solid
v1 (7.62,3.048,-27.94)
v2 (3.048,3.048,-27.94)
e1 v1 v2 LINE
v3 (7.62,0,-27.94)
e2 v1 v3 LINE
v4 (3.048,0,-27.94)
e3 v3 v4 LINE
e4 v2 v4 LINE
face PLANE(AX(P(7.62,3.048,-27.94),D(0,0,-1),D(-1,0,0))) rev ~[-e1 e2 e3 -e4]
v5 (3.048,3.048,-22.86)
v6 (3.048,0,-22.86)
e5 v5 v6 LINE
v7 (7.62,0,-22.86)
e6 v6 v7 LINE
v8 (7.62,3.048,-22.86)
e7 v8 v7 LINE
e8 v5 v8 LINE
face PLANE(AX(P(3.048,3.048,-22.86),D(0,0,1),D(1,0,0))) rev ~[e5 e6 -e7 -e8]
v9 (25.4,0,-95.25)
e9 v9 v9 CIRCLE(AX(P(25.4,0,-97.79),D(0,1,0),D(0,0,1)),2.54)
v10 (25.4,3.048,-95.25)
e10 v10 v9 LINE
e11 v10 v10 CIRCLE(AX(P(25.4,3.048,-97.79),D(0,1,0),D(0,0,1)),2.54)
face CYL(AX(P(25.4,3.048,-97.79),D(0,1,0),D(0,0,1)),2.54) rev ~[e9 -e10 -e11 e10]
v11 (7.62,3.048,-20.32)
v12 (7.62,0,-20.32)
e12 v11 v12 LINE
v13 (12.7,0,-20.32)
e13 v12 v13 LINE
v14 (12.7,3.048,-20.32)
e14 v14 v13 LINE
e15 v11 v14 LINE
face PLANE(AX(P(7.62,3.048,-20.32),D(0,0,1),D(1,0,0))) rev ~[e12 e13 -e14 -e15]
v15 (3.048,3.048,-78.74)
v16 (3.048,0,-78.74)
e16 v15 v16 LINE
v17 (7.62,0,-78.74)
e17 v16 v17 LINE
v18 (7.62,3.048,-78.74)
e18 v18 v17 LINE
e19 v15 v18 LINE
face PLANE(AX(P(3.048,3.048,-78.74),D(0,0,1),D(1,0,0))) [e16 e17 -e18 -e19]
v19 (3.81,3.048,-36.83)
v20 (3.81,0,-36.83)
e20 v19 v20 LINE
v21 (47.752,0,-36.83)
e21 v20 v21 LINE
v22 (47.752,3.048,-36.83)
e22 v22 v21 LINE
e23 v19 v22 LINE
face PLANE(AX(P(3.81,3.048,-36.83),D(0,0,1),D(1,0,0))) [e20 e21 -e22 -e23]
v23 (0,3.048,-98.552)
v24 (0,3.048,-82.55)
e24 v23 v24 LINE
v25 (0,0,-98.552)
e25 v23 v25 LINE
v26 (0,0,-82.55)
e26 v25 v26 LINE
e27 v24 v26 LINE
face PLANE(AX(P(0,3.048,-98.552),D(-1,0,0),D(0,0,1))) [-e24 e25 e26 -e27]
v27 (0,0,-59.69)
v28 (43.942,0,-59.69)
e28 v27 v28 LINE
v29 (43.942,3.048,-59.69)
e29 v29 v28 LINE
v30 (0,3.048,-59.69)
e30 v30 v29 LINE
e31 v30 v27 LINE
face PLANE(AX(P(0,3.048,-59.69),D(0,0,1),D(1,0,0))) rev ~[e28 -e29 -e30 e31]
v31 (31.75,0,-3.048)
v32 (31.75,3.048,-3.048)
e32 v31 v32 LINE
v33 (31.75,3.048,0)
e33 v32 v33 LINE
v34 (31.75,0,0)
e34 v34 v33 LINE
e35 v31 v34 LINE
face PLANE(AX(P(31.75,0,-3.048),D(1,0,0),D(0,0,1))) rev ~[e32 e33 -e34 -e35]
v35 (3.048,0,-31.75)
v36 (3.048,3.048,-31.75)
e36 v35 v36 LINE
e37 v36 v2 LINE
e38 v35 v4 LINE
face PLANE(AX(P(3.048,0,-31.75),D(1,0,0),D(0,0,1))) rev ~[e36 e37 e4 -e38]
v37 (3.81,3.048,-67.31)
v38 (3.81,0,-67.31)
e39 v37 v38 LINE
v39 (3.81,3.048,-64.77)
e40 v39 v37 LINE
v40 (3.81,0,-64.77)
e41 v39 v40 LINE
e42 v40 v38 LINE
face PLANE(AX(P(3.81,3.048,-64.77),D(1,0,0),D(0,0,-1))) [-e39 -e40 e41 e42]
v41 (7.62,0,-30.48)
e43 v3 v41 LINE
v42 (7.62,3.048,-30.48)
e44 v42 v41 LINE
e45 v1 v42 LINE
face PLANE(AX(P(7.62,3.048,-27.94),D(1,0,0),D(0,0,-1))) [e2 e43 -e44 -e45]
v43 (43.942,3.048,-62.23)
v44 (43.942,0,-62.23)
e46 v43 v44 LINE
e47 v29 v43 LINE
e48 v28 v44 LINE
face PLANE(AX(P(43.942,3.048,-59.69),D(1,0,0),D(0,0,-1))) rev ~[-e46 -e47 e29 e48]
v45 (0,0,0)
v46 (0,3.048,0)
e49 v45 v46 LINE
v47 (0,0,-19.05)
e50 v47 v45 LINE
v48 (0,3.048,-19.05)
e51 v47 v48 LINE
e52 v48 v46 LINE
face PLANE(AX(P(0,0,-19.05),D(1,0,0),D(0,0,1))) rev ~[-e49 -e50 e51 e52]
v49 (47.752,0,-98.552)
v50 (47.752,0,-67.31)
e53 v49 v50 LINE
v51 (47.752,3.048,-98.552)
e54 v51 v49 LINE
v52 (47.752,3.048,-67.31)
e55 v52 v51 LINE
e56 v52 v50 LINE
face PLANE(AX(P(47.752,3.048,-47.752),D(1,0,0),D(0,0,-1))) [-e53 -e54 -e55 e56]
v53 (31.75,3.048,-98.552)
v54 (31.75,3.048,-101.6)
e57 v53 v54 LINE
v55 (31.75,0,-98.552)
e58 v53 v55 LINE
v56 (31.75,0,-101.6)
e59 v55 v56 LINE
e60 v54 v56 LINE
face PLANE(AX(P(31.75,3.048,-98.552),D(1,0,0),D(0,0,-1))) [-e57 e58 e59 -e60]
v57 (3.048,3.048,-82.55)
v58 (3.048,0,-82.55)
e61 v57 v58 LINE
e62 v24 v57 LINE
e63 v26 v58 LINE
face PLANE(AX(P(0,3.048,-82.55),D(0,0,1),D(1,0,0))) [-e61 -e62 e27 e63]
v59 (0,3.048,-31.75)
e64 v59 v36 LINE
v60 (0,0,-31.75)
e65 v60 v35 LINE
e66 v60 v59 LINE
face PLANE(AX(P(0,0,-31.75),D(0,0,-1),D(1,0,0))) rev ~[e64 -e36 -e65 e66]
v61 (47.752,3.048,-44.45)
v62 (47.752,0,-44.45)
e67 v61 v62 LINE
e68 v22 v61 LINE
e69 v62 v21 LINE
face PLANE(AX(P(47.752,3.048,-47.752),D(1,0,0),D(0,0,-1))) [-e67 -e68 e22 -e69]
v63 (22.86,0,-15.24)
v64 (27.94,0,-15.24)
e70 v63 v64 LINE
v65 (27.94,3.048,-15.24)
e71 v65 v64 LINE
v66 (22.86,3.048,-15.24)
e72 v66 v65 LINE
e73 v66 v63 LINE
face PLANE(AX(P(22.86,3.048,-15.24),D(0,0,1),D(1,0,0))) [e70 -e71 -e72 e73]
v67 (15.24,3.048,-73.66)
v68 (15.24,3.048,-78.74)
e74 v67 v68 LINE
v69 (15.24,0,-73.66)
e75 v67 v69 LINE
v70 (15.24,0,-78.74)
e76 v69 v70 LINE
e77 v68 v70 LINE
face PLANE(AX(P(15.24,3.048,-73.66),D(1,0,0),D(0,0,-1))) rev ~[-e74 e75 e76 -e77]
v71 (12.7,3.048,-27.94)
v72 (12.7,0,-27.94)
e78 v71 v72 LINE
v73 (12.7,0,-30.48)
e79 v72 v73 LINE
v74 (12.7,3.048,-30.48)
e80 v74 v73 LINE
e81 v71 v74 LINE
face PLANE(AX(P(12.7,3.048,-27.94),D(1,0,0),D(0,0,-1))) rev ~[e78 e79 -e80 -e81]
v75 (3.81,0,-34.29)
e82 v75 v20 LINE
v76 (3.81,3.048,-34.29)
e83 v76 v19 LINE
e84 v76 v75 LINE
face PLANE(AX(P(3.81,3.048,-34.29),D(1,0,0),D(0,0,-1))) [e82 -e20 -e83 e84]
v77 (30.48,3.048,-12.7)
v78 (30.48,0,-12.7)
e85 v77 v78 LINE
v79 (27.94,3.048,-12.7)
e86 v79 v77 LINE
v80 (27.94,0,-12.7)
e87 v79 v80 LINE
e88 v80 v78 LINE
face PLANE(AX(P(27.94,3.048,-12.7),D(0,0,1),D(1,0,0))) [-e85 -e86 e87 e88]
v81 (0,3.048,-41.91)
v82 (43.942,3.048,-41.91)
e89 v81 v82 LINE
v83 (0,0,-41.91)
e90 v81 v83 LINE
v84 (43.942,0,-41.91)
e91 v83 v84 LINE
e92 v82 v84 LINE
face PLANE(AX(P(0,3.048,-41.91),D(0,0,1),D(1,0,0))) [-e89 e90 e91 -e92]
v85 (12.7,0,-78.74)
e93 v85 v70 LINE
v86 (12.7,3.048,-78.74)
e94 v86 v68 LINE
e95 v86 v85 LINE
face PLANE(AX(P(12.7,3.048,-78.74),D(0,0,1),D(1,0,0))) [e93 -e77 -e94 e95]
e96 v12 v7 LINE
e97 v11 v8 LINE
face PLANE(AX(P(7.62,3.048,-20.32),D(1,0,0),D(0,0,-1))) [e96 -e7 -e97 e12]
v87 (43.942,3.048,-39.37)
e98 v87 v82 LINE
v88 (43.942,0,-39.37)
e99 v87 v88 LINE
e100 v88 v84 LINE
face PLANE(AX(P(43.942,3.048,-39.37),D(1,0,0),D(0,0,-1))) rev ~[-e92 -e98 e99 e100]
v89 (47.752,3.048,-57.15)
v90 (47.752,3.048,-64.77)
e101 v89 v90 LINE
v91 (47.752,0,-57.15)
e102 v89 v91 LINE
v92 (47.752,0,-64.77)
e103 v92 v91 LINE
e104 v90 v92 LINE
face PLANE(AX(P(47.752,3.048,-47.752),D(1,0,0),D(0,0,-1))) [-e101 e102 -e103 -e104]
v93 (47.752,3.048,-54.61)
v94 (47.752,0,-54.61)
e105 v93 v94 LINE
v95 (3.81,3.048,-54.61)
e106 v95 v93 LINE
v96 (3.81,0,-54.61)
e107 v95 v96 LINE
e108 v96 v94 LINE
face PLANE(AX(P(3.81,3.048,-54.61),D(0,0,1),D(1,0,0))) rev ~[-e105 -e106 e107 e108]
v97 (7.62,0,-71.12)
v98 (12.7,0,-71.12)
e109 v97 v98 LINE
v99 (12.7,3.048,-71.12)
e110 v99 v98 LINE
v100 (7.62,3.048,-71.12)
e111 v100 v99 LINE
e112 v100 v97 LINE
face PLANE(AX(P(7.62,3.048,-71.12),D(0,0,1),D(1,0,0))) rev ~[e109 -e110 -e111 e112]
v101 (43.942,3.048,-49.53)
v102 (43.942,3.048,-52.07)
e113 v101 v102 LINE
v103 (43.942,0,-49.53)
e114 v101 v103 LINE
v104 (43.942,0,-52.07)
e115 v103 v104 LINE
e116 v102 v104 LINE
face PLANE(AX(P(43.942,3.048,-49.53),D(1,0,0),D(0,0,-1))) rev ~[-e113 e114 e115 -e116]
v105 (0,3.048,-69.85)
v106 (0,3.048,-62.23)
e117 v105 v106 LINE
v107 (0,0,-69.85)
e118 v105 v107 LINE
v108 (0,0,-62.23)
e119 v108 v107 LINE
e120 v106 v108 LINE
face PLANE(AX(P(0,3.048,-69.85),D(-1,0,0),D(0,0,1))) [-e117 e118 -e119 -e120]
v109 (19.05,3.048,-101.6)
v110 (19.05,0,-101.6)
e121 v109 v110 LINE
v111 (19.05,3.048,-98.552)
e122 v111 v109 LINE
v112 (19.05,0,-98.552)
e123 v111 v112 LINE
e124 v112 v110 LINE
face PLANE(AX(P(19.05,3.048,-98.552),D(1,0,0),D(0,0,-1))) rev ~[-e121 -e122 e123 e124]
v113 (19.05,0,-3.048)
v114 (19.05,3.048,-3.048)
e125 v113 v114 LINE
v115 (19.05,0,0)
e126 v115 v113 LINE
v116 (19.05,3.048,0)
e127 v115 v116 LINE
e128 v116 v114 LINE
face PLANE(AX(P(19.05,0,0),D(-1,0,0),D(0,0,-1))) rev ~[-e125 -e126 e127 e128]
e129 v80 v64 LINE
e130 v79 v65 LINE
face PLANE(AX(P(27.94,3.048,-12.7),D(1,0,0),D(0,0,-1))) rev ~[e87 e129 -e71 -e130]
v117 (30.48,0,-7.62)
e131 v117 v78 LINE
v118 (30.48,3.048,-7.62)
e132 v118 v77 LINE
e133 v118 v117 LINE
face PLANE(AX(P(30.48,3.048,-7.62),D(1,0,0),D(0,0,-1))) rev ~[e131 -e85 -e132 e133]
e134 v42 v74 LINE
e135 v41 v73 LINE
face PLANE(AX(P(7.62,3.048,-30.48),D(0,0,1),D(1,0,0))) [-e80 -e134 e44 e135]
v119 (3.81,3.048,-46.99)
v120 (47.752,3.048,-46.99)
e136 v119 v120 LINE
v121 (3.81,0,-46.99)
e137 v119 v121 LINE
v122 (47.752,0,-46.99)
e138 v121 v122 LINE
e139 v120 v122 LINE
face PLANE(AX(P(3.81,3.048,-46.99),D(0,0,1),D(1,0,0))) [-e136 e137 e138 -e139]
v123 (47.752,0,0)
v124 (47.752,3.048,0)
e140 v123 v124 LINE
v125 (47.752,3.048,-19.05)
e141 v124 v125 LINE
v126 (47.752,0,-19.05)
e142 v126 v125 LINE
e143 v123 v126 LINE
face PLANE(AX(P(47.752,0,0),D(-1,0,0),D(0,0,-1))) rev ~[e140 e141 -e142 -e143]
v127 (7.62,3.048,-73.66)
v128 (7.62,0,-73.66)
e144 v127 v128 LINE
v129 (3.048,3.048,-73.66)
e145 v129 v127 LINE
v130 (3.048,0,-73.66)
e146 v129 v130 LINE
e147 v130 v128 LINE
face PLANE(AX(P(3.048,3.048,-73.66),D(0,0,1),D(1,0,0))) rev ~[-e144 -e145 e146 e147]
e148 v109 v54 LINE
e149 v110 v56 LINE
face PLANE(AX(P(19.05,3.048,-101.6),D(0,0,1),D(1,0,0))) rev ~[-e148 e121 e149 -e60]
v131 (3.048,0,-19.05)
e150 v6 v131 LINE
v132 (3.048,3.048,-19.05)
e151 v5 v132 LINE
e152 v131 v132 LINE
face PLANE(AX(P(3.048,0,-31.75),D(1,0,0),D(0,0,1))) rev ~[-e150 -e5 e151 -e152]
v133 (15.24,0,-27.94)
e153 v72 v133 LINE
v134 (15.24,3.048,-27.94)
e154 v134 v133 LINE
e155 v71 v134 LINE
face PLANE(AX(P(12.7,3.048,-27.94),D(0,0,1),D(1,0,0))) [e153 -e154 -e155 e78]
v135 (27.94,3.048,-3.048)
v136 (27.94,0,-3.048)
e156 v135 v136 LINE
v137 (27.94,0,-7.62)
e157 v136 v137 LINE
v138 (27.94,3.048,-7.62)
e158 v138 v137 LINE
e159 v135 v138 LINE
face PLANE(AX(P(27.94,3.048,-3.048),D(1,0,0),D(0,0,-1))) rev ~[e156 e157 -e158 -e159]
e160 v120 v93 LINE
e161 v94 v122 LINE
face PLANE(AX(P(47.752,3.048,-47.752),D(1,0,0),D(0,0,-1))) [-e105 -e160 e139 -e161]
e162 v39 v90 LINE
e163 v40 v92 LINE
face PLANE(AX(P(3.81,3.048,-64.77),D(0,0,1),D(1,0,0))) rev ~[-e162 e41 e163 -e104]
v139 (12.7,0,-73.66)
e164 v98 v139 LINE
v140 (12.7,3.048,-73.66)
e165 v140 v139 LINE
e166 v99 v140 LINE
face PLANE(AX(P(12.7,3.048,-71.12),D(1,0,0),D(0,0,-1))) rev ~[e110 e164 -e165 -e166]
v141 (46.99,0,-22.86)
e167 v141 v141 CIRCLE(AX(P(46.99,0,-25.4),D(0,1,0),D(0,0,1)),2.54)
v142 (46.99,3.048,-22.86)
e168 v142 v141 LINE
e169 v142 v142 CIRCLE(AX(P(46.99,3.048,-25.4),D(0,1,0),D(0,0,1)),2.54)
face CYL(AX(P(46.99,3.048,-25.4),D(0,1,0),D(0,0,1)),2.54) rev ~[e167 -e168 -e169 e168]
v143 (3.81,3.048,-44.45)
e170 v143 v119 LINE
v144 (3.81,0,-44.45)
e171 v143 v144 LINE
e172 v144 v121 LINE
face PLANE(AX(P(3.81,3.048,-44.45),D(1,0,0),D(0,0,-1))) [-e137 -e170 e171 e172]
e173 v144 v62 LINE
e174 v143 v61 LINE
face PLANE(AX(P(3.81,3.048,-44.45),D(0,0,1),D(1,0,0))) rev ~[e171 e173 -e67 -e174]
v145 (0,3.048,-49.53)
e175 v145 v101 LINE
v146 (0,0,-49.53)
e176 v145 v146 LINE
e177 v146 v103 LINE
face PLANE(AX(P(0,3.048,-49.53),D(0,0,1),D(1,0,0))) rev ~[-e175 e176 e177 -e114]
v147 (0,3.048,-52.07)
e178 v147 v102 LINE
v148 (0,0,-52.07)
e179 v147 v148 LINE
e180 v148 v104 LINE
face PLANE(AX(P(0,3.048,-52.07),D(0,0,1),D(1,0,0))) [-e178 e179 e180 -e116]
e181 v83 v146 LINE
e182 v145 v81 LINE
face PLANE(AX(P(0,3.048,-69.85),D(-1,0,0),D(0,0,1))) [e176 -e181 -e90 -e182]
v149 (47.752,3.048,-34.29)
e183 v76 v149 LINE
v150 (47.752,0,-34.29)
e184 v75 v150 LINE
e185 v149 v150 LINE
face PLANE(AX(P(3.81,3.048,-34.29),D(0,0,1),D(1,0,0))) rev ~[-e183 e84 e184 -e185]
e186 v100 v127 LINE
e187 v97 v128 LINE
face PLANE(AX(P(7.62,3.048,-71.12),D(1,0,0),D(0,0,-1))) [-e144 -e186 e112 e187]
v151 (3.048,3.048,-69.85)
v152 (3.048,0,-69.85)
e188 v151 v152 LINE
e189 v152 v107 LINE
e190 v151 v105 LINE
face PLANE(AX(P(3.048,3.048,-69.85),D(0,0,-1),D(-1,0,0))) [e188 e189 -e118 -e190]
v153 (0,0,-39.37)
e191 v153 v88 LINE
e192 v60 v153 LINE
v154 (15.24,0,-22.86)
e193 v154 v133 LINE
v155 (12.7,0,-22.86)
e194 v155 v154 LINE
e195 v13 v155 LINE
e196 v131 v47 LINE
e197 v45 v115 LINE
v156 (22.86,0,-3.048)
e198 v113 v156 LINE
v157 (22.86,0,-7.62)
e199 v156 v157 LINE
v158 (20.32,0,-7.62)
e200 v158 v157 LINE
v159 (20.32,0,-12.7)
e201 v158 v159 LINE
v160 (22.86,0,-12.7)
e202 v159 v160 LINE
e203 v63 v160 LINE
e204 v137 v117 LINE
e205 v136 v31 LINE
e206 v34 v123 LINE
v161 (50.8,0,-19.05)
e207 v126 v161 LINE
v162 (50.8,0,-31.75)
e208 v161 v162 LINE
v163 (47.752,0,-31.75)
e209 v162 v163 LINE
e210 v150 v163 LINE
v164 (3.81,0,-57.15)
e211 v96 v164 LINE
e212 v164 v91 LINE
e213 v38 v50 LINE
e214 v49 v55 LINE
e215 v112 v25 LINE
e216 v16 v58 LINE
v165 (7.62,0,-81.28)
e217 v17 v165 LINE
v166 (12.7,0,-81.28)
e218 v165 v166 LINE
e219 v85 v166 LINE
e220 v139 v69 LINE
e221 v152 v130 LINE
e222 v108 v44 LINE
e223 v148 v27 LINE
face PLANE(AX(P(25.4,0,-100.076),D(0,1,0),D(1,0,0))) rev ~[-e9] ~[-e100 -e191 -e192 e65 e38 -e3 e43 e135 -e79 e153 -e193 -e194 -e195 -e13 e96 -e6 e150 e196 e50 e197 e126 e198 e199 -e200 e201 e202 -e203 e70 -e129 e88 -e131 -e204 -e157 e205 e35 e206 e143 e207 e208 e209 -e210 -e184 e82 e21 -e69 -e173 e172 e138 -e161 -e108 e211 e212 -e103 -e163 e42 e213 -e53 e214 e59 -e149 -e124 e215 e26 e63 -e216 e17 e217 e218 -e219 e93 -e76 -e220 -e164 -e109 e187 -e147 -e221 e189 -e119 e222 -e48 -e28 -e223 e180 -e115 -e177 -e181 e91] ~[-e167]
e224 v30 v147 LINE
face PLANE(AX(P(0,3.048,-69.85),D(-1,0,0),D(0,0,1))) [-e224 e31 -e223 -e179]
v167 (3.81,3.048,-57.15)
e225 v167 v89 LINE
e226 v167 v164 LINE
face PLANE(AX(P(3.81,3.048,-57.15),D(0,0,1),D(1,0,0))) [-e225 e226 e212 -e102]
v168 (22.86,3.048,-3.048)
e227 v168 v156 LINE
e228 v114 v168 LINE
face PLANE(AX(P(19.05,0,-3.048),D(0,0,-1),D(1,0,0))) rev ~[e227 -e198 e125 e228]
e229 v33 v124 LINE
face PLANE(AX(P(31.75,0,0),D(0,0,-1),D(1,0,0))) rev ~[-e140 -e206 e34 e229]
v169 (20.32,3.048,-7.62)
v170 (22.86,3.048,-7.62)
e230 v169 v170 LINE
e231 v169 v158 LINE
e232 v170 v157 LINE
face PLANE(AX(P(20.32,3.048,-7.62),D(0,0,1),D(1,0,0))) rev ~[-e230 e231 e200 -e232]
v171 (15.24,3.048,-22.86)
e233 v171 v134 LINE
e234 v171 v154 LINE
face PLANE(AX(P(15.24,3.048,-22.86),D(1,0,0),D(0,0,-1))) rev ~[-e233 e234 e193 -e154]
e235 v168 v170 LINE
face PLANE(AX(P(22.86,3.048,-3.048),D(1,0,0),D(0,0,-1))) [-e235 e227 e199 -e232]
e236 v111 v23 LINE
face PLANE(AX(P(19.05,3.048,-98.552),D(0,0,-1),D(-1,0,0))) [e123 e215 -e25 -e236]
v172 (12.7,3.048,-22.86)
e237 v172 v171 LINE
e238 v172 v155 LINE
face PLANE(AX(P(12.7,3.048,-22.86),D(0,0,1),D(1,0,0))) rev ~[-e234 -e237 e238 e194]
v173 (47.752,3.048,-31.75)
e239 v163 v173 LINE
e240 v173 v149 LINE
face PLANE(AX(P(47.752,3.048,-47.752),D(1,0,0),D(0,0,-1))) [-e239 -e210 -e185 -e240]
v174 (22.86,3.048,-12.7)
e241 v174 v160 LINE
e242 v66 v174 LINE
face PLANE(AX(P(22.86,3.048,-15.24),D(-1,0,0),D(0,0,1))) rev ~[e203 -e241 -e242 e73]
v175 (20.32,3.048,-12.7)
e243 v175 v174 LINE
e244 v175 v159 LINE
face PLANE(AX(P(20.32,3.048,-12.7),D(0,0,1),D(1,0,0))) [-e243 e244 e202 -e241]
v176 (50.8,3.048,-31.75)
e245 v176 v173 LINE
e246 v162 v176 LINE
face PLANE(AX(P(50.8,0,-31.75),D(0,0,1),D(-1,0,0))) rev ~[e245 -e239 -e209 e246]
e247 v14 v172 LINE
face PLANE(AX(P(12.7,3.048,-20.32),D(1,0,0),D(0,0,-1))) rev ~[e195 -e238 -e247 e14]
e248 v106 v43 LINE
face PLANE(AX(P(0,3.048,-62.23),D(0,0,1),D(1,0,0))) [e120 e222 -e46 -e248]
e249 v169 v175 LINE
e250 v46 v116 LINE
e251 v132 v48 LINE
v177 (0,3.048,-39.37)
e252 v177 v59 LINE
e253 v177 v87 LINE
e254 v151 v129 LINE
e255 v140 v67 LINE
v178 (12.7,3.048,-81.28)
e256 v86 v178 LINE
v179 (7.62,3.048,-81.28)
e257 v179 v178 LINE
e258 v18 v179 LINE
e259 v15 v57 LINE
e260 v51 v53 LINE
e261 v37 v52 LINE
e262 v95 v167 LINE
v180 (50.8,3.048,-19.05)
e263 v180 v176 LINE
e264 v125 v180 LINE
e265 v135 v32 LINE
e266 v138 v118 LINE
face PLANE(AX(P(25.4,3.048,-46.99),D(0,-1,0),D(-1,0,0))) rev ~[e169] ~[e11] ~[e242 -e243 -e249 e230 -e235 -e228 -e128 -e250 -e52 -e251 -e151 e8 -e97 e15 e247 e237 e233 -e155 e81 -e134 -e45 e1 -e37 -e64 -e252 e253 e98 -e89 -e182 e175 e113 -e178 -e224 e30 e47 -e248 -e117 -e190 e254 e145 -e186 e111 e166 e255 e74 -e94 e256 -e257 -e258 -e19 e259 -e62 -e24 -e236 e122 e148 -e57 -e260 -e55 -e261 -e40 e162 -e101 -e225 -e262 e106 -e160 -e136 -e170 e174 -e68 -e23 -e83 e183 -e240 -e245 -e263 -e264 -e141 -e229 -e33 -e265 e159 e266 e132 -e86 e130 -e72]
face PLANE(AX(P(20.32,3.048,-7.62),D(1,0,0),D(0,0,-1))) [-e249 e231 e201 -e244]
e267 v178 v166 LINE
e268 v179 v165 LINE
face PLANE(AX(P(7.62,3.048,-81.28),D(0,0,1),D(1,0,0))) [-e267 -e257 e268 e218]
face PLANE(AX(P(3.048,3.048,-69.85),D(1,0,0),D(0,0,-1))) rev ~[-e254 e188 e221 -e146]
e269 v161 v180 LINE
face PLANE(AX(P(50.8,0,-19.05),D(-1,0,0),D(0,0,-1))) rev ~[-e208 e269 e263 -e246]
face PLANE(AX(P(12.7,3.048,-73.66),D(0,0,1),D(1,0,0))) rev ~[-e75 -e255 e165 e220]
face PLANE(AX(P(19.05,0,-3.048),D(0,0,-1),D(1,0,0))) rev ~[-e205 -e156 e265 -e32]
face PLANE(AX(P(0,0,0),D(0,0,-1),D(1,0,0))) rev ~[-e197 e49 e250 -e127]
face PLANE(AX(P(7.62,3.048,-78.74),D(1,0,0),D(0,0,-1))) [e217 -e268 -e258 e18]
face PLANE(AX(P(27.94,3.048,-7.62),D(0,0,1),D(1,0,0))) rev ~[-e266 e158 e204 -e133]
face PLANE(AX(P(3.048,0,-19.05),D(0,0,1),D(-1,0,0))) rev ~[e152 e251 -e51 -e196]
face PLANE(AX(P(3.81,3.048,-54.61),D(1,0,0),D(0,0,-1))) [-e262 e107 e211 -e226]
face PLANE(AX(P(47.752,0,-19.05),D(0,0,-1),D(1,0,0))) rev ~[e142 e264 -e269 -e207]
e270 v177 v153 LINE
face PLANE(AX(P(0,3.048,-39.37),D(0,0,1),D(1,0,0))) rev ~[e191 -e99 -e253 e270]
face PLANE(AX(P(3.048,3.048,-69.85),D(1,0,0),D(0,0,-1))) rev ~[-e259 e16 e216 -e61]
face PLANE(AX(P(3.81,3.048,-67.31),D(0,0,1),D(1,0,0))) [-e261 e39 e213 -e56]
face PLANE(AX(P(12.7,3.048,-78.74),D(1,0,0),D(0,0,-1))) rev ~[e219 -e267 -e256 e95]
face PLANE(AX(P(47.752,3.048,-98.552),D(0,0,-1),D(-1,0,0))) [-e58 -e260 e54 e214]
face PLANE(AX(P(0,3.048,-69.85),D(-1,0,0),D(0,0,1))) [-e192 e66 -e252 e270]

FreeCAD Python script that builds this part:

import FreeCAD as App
import Part
import Sketcher
from FreeCAD import Vector
Q = App.Units.Quantity

doc = App.newDocument("Part")
body = doc.addObject("PartDesign::Body", "Body")

# Sketch on XZ plane
sketch1 = body.newObject("Sketcher::SketchObject", "Sketch")
sketch1.AttachmentSupport = (doc.getObject("XZ_Plane"), [""])
sketch1.MapMode = "FlatFace"
sketch1.addGeometry([
    Part.LineSegment(Vector(0, -19.1, 0), Vector(0, 0, 0)),  # 0
    Part.LineSegment(Vector(0, 0, 0), Vector(19.1, 0, 0)),  # 1
    Part.LineSegment(Vector(19.1, 0, 0), Vector(19.1, -3, 0)),  # 2
    Part.LineSegment(Vector(19.1, -3, 0), Vector(31.8, -3, 0)),  # 3
    Part.LineSegment(Vector(31.8, -3, 0), Vector(31.8, 0, 0)),  # 4
    Part.LineSegment(Vector(31.8, 0, 0), Vector(47.8, 0, 0)),  # 5
    Part.LineSegment(Vector(47.8, 0, 0), Vector(47.8, -19.1, 0)),  # 6
    Part.LineSegment(Vector(47.8, -19.1, 0), Vector(50.8, -19.1, 0)),  # 7
    Part.LineSegment(Vector(50.8, -19.1, 0), Vector(50.8, -31.8, 0)),  # 8
    Part.LineSegment(Vector(50.8, -31.8, 0), Vector(47.8, -31.8, 0)),  # 9
    Part.LineSegment(Vector(47.8, -31.8, 0), Vector(47.8, -47.8, 0)),  # 10
    Part.LineSegment(Vector(47.8, -47.8, 0), Vector(31.8, -47.8, 0)),  # 11
    Part.LineSegment(Vector(31.8, -47.8, 0), Vector(31.8, -50.8, 0)),  # 12
    Part.LineSegment(Vector(31.8, -50.8, 0), Vector(19.1, -50.8, 0)),  # 13
    Part.LineSegment(Vector(19.1, -50.8, 0), Vector(19.1, -47.8, 0)),  # 14
    Part.LineSegment(Vector(19.1, -47.8, 0), Vector(0, -47.8, 0)),  # 15
    Part.LineSegment(Vector(0, -47.8, 0), Vector(0, -31.8, 0)),  # 16
    Part.LineSegment(Vector(0, -31.8, 0), Vector(3, -31.8, 0)),  # 17
    Part.LineSegment(Vector(3, -31.8, 0), Vector(3, -19.1, 0)),  # 18
    Part.LineSegment(Vector(3, -19.1, 0), Vector(0, -19.1, 0)),  # 19
], False)
sketch1.addConstraint([
    Sketcher.Constraint("Coincident", 0, 2, 1, 1),
    Sketcher.Constraint("Coincident", 1, 2, 2, 1),
    Sketcher.Constraint("Coincident", 2, 2, 3, 1),
    Sketcher.Constraint("Coincident", 3, 2, 4, 1),
    Sketcher.Constraint("Coincident", 4, 2, 5, 1),
    Sketcher.Constraint("Coincident", 5, 2, 6, 1),
    Sketcher.Constraint("Coincident", 6, 2, 7, 1),
    Sketcher.Constraint("Coincident", 7, 2, 8, 1),
    Sketcher.Constraint("Coincident", 8, 2, 9, 1),
    Sketcher.Constraint("Coincident", 9, 2, 10, 1),
    Sketcher.Constraint("Coincident", 10, 2, 11, 1),
    Sketcher.Constraint("Coincident", 11, 2, 12, 1),
    Sketcher.Constraint("Coincident", 12, 2, 13, 1),
    Sketcher.Constraint("Coincident", 13, 2, 14, 1),
    Sketcher.Constraint("Coincident", 14, 2, 15, 1),
    Sketcher.Constraint("Coincident", 15, 2, 16, 1),
    Sketcher.Constraint("Coincident", 16, 2, 17, 1),
    Sketcher.Constraint("Coincident", 17, 2, 18, 1),
    Sketcher.Constraint("Coincident", 18, 2, 19, 1),
    Sketcher.Constraint("Coincident", 19, 2, 0, 1),
    Sketcher.Constraint("Vertical", 0),
    Sketcher.Constraint("Horizontal", 1),
    Sketcher.Constraint("Vertical", 2),
    Sketcher.Constraint("Horizontal", 3),
    Sketcher.Constraint("Vertical", 4),
    Sketcher.Constraint("Horizontal", 5),
    Sketcher.Constraint("Vertical", 6),
    Sketcher.Constraint("Horizontal", 7),
    Sketcher.Constraint("Vertical", 8),
    Sketcher.Constraint("Horizontal", 9),
    Sketcher.Constraint("Vertical", 10),
    Sketcher.Constraint("Horizontal", 11),
    Sketcher.Constraint("Vertical", 12),
    Sketcher.Constraint("Horizontal", 13),
    Sketcher.Constraint("Vertical", 14),
    Sketcher.Constraint("Horizontal", 15),
    Sketcher.Constraint("Vertical", 16),
    Sketcher.Constraint("Horizontal", 17),
    Sketcher.Constraint("Vertical", 18),
    Sketcher.Constraint("Horizontal", 19),
    Sketcher.Constraint("Coincident", 0, 2, -1, 1),
    Sketcher.Constraint("PointOnObject", 4, 2, -1),
    Sketcher.Constraint("PointOnObject", 15, 2, -2),
    Sketcher.Constraint("Horizontal", 11, 2, 14, 2),
    Sketcher.Constraint("Horizontal", 9, 2, 16, 2),
    Sketcher.Constraint("Horizontal", 7, 2, 18, 2),
    Sketcher.Constraint("Vertical", 6, 2, 9, 2),
    Sketcher.Constraint("Vertical", 4, 2, 11, 2),
    Sketcher.Constraint("Vertical", 2, 2, 13, 2),
    Sketcher.Constraint("Equal", 9, 17),
    Sketcher.Constraint("Equal", 15, 0),
    Sketcher.Constraint("Equal", 19, 2),
    Sketcher.Constraint("Equal", 13, 8),
    Sketcher.Constraint("Equal", 11, 10),
    Sketcher.Constraint("Equal", 4, 12),
    Sketcher.Constraint("DistanceX", 3, 1, 3, 2, Q("0.5 in")),
    Sketcher.Constraint("DistanceX", -1, 1, 7, 2, Q("2 in")),
    Sketcher.Constraint("DistanceX", 1, 1, 1, 2, Q("0.75 in")),
    Sketcher.Constraint("DistanceX", 5, 1, 5, 2, Q("0.63 in")),
])
pad1 = body.newObject("PartDesign::Pad", "Pad")
pad1.Profile = sketch1
pad1.Length = Q("0.12 in")
pad1.Reversed = True

# Sketch on XZ plane
sketch2 = body.newObject("Sketcher::SketchObject", "Sketch001")
sketch2.AttachmentSupport = (doc.getObject("XZ_Plane"), [""])
sketch2.MapMode = "FlatFace"
sketch2.AttachmentOffset = App.Placement(Vector(0, 0, -0.12 * 25.4), App.Rotation())
sketch2.addGeometry([
    Part.LineSegment(Vector(3, -27.9, 0), Vector(3, -22.9, 0)),  # 0
    Part.LineSegment(Vector(3, -22.9, 0), Vector(7.6, -22.9, 0)),  # 1
    Part.LineSegment(Vector(7.6, -22.9, 0), Vector(7.6, -20.3, 0)),  # 2
    Part.LineSegment(Vector(7.6, -20.3, 0), Vector(12.7, -20.3, 0)),  # 3
    Part.LineSegment(Vector(12.7, -20.3, 0), Vector(12.7, -22.9, 0)),  # 4
    Part.LineSegment(Vector(12.7, -22.9, 0), Vector(15.2, -22.9, 0)),  # 5
    Part.LineSegment(Vector(15.2, -22.9, 0), Vector(15.2, -27.9, 0)),  # 6
    Part.LineSegment(Vector(15.2, -27.9, 0), Vector(12.7, -27.9, 0)),  # 7
    Part.LineSegment(Vector(12.7, -27.9, 0), Vector(12.7, -30.5, 0)),  # 8
    Part.LineSegment(Vector(12.7, -30.5, 0), Vector(7.6, -30.5, 0)),  # 9
    Part.LineSegment(Vector(7.6, -30.5, 0), Vector(7.6, -27.9, 0)),  # 10
    Part.LineSegment(Vector(7.6, -27.9, 0), Vector(3, -27.9, 0)),  # 11
    Part.LineSegment(Vector(22.9, -15.2, 0), Vector(22.9, -12.7, 0)),  # 12
    Part.LineSegment(Vector(22.9, -12.7, 0), Vector(20.3, -12.7, 0)),  # 13
    Part.LineSegment(Vector(20.3, -12.7, 0), Vector(20.3, -7.6, 0)),  # 14
    Part.LineSegment(Vector(20.3, -7.6, 0), Vector(22.9, -7.6, 0)),  # 15
    Part.LineSegment(Vector(22.9, -7.6, 0), Vector(22.9, -3, 0)),  # 16
    Part.LineSegment(Vector(22.9, -3, 0), Vector(27.9, -3, 0)),  # 17
    Part.LineSegment(Vector(27.9, -3, 0), Vector(27.9, -7.6, 0)),  # 18
    Part.LineSegment(Vector(27.9, -7.6, 0), Vector(30.5, -7.6, 0)),  # 19
    Part.LineSegment(Vector(30.5, -7.6, 0), Vector(30.5, -12.7, 0)),  # 20
    Part.LineSegment(Vector(30.5, -12.7, 0), Vector(27.9, -12.7, 0)),  # 21
    Part.LineSegment(Vector(27.9, -12.7, 0), Vector(27.9, -15.2, 0)),  # 22
    Part.LineSegment(Vector(27.9, -15.2, 0), Vector(22.9, -15.2, 0)),  # 23
    Part.Circle(Vector(47, -25.4, 0), Vector(0, 0, 1), 2.5),  # 24
    Part.Circle(Vector(25.4, -47, 0), Vector(0, 0, 1), 2.5),  # 25
], False)
sketch2.addConstraint([
    Sketcher.Constraint("Coincident", 0, 2, 1, 1),
    Sketcher.Constraint("Coincident", 1, 2, 2, 1),
    Sketcher.Constraint("Coincident", 2, 2, 3, 1),
    Sketcher.Constraint("Coincident", 3, 2, 4, 1),
    Sketcher.Constraint("Coincident", 4, 2, 5, 1),
    Sketcher.Constraint("Coincident", 5, 2, 6, 1),
    Sketcher.Constraint("Coincident", 6, 2, 7, 1),
    Sketcher.Constraint("Coincident", 7, 2, 8, 1),
    Sketcher.Constraint("Coincident", 8, 2, 9, 1),
    Sketcher.Constraint("Coincident", 9, 2, 10, 1),
    Sketcher.Constraint("Coincident", 10, 2, 11, 1),
    Sketcher.Constraint("Coincident", 11, 2, 0, 1),
    Sketcher.Constraint("Coincident", 12, 2, 13, 1),
    Sketcher.Constraint("Coincident", 13, 2, 14, 1),
    Sketcher.Constraint("Coincident", 14, 2, 15, 1),
    Sketcher.Constraint("Coincident", 15, 2, 16, 1),
    Sketcher.Constraint("Coincident", 16, 2, 17, 1),
    Sketcher.Constraint("Coincident", 17, 2, 18, 1),
    Sketcher.Constraint("Coincident", 18, 2, 19, 1),
    Sketcher.Constraint("Coincident", 19, 2, 20, 1),
    Sketcher.Constraint("Coincident", 20, 2, 21, 1),
    Sketcher.Constraint("Coincident", 21, 2, 22, 1),
    Sketcher.Constraint("Coincident", 22, 2, 23, 1),
    Sketcher.Constraint("Coincident", 23, 2, 12, 1),
    Sketcher.Constraint("Vertical", 0),
    Sketcher.Constraint("Horizontal", 1),
    Sketcher.Constraint("Vertical", 2),
    Sketcher.Constraint("Horizontal", 3),
    Sketcher.Constraint("Vertical", 4),
    Sketcher.Constraint("Horizontal", 5),
    Sketcher.Constraint("Vertical", 6),
    Sketcher.Constraint("Horizontal", 7),
    Sketcher.Constraint("Vertical", 8),
    Sketcher.Constraint("Horizontal", 9),
    Sketcher.Constraint("Vertical", 10),
    Sketcher.Constraint("Horizontal", 11),
    Sketcher.Constraint("Vertical", 12),
    Sketcher.Constraint("Horizontal", 13),
    Sketcher.Constraint("Vertical", 14),
    Sketcher.Constraint("Horizontal", 15),
    Sketcher.Constraint("Vertical", 16),
    Sketcher.Constraint("Horizontal", 17),
    Sketcher.Constraint("Vertical", 18),
    Sketcher.Constraint("Horizontal", 19),
    Sketcher.Constraint("Vertical", 20),
    Sketcher.Constraint("Horizontal", 21),
    Sketcher.Constraint("Vertical", 22),
    Sketcher.Constraint("Horizontal", 23),
    Sketcher.Constraint("Equal", 24, 25),
    Sketcher.Constraint("Horizontal", 1, 2, 4, 2),
    Sketcher.Constraint("Horizontal", 7, 2, 10, 2),
    Sketcher.Constraint("Horizontal", 15, 2, 18, 2),
    Sketcher.Constraint("Horizontal", 13, 2, 20, 2),
    Sketcher.Constraint("Vertical", 4, 2, 7, 2),
    Sketcher.Constraint("Vertical", 2, 2, 9, 2),
    Sketcher.Constraint("Vertical", 12, 2, 15, 2),
    Sketcher.Constraint("Vertical", 18, 2, 21, 2),
    Sketcher.Constraint("Equal", 7, 13),
    Sketcher.Constraint("Equal", 9, 17),
    Sketcher.Constraint("Equal", 15, 19),
    Sketcher.Constraint("Equal", 23, 0),
    Sketcher.Constraint("Equal", 21, 2),
    Sketcher.Constraint("Equal", 4, 8),
    Sketcher.Constraint("Equal", 10, 12),
    Sketcher.Constraint("Equal", 6, 14),
    Sketcher.Constraint("Equal", 11, 16),
    Sketcher.Constraint("Diameter", 24, Q("0.2 in")),
    Sketcher.Constraint("DistanceX", 3, 1, 3, 2, Q("0.2 in")),
    Sketcher.Constraint("DistanceX", 5, 1, 5, 2, Q("0.1 in")),
    Sketcher.Constraint("DistanceY", 24, 3, -1, 1, Q("1 in")),
    Sketcher.Constraint("DistanceX", -1, 1, 25, 3, Q("1 in")),
    Sketcher.Constraint("DistanceX", 1, 1, 1, 2, Q("0.18 in")),
    Sketcher.Constraint("DistanceY", 0, 2, -1, 1, Q("0.9 in")),
    Sketcher.Constraint("DistanceX", -1, 1, 1, 2, Q("0.3 in")),
    Sketcher.Constraint("DistanceX", -1, 1, 12, 2, Q("0.9 in")),
    Sketcher.Constraint("DistanceY", 12, 2, -1, 1, Q("0.5 in")),
    Sketcher.Constraint("DistanceX", -1, 1, 24, 3, Q("1.85 in")),
    Sketcher.Constraint("DistanceY", 25, 3, -1, 1, Q("1.85 in")),
])
pocket1 = body.newObject("PartDesign::Pocket", "Pocket")
pocket1.Profile = sketch2
pocket1.Length = Q("0.12 in")
pocket1.Reversed = True

# Sketch on XZ plane
sketch3 = body.newObject("Sketcher::SketchObject", "Sketch002")
sketch3.AttachmentSupport = (doc.getObject("XZ_Plane"), [""])
sketch3.MapMode = "FlatFace"
sketch3.AttachmentOffset = App.Placement(Vector(0, 0, -0.12 * 25.4), App.Rotation())
sketch3.addGeometry([
    Part.LineSegment(Vector(19.1, -101.6, 0), Vector(19.1, -98.6, 0)),  # 0
    Part.LineSegment(Vector(19.1, -98.6, 0), Vector(0, -98.6, 0)),  # 1
    Part.LineSegment(Vector(0, -98.6, 0), Vector(0, -82.5, 0)),  # 2
    Part.LineSegment(Vector(0, -82.5, 0), Vector(3, -82.5, 0)),  # 3
    Part.LineSegment(Vector(3, -82.5, 0), Vector(3, -69.8, 0)),  # 4
    Part.LineSegment(Vector(3, -69.8, 0), Vector(0, -69.8, 0)),  # 5
    Part.LineSegment(Vector(0, -69.8, 0), Vector(0, -47.8, 0)),  # 6
    Part.LineSegment(Vector(0, -47.8, 0), Vector(19.1, -47.8, 0)),  # 7
    Part.LineSegment(Vector(19.1, -47.8, 0), Vector(19.1, -50.8, 0)),  # 8
    Part.LineSegment(Vector(19.1, -50.8, 0), Vector(31.8, -50.8, 0)),  # 9
    Part.LineSegment(Vector(31.8, -50.8, 0), Vector(31.8, -47.8, 0)),  # 10
    Part.LineSegment(Vector(31.8, -47.8, 0), Vector(47.8, -47.8, 0)),  # 11
    Part.LineSegment(Vector(47.8, -47.8, 0), Vector(47.8, -98.6, 0)),  # 12
    Part.LineSegment(Vector(47.8, -98.6, 0), Vector(31.8, -98.6, 0)),  # 13
    Part.LineSegment(Vector(31.8, -98.6, 0), Vector(31.8, -101.6, 0)),  # 14
    Part.LineSegment(Vector(31.8, -101.6, 0), Vector(19.1, -101.6, 0)),  # 15
], False)
sketch3.addConstraint([
    Sketcher.Constraint("Coincident", 0, 2, 1, 1),
    Sketcher.Constraint("Coincident", 1, 2, 2, 1),
    Sketcher.Constraint("Coincident", 2, 2, 3, 1),
    Sketcher.Constraint("Coincident", 3, 2, 4, 1),
    Sketcher.Constraint("Coincident", 4, 2, 5, 1),
    Sketcher.Constraint("Coincident", 5, 2, 6, 1),
    Sketcher.Constraint("Coincident", 6, 2, 7, 1),
    Sketcher.Constraint("Coincident", 7, 2, 8, 1),
    Sketcher.Constraint("Coincident", 8, 2, 9, 1),
    Sketcher.Constraint("Coincident", 9, 2, 10, 1),
    Sketcher.Constraint("Coincident", 10, 2, 11, 1),
    Sketcher.Constraint("Coincident", 11, 2, 12, 1),
    Sketcher.Constraint("Coincident", 12, 2, 13, 1),
    Sketcher.Constraint("Coincident", 13, 2, 14, 1),
    Sketcher.Constraint("Coincident", 14, 2, 15, 1),
    Sketcher.Constraint("Coincident", 15, 2, 0, 1),
    Sketcher.Constraint("Vertical", 0),
    Sketcher.Constraint("Horizontal", 1),
    Sketcher.Constraint("Vertical", 2),
    Sketcher.Constraint("Horizontal", 3),
    Sketcher.Constraint("Vertical", 4),
    Sketcher.Constraint("Horizontal", 5),
    Sketcher.Constraint("Vertical", 6),
    Sketcher.Constraint("Horizontal", 7),
    Sketcher.Constraint("Vertical", 8),
    Sketcher.Constraint("Horizontal", 9),
    Sketcher.Constraint("Vertical", 10),
    Sketcher.Constraint("Horizontal", 11),
    Sketcher.Constraint("Vertical", 12),
    Sketcher.Constraint("Horizontal", 13),
    Sketcher.Constraint("Vertical", 14),
    Sketcher.Constraint("Horizontal", 15),
    Sketcher.Constraint("PointOnObject", 1, 2, -2),
    Sketcher.Constraint("PointOnObject", 5, 2, -2),
    Sketcher.Constraint("Horizontal", 7, 2, 10, 2),
    Sketcher.Constraint("Horizontal", 1, 2, 12, 2),
    Sketcher.Constraint("Vertical", 0, 2, 7, 2),
    Sketcher.Constraint("Vertical", 10, 2, 13, 2),
    Sketcher.Constraint("Equal", 5, 0),
    Sketcher.Constraint("Equal", 13, 2),
    Sketcher.Constraint("Equal", 15, 4),
    Sketcher.Constraint("Equal", 0, 8),
    Sketcher.Constraint("DistanceY", 12, 2, 12, 1, Q("2 in")),
    Sketcher.Constraint("DistanceX", 9, 1, 9, 2, Q("0.5 in")),
    Sketcher.Constraint("DistanceY", 8, 2, -1, 1, Q("2 in")),
    Sketcher.Constraint("DistanceX", 1, 2, 1, 1, Q("0.75 in")),
    Sketcher.Constraint("DistanceX", 3, 1, 3, 2, Q("0.12 in")),
    Sketcher.Constraint("DistanceX", 11, 1, 11, 2, Q("0.63 in")),
])
pad2 = body.newObject("PartDesign::Pad", "Pad001")
pad2.Profile = sketch3
pad2.Length = Q("0.12 in")

# Sketch on XZ plane
sketch4 = body.newObject("Sketcher::SketchObject", "Sketch003")
sketch4.AttachmentSupport = (doc.getObject("XZ_Plane"), [""])
sketch4.MapMode = "FlatFace"
sketch4.AttachmentOffset = App.Placement(Vector(0, 0, -0.12 * 25.4), App.Rotation())
sketch4.addGeometry(Part.Circle(Vector(25.4, -47, 0), Vector(0, 0, 1), 2.5), False)
sketch4.addConstraint([
    Sketcher.Constraint("Diameter", 0, Q("0.2 in")),
    Sketcher.Constraint("DistanceX", -1, 1, 0, 3, Q("1 in")),
    Sketcher.Constraint("DistanceY", 0, 3, -1, 1, Q("1.85 in")),
])
pad3 = body.newObject("PartDesign::Pad", "Pad002")
pad3.Profile = sketch4
pad3.Length = Q("0.12 in")

# Sketch on XZ plane
sketch5 = body.newObject("Sketcher::SketchObject", "Sketch004")
sketch5.AttachmentSupport = (doc.getObject("XZ_Plane"), [""])
sketch5.MapMode = "FlatFace"
sketch5.AttachmentOffset = App.Placement(Vector(0, 0, -0.12 * 25.4), App.Rotation())
sketch5.addGeometry([
    Part.Circle(Vector(25.4, -97.8, 0), Vector(0, 0, 1), 2.5),  # 0
    Part.LineSegment(Vector(7.6, -81.3, 0), Vector(7.6, -78.7, 0)),  # 1
    Part.LineSegment(Vector(7.6, -78.7, 0), Vector(3, -78.7, 0)),  # 2
    Part.LineSegment(Vector(3, -78.7, 0), Vector(3, -73.7, 0)),  # 3
    Part.LineSegment(Vector(3, -73.7, 0), Vector(7.6, -73.7, 0)),  # 4
    Part.LineSegment(Vector(7.6, -73.7, 0), Vector(7.6, -71.1, 0)),  # 5
    Part.LineSegment(Vector(7.6, -71.1, 0), Vector(12.7, -71.1, 0)),  # 6
    Part.LineSegment(Vector(12.7, -71.1, 0), Vector(12.7, -73.7, 0)),  # 7
    Part.LineSegment(Vector(12.7, -73.7, 0), Vector(15.2, -73.7, 0)),  # 8
    Part.LineSegment(Vector(15.2, -73.7, 0), Vector(15.2, -78.7, 0)),  # 9
    Part.LineSegment(Vector(15.2, -78.7, 0), Vector(12.7, -78.7, 0)),  # 10
    Part.LineSegment(Vector(12.7, -78.7, 0), Vector(12.7, -81.3, 0)),  # 11
    Part.LineSegment(Vector(12.7, -81.3, 0), Vector(7.6, -81.3, 0)),  # 12
    Part.LineSegment(Vector(3.8, -67.3, 0), Vector(3.8, -64.8, 0)),  # 13
    Part.LineSegment(Vector(3.8, -64.8, 0), Vector(47.8, -64.8, 0)),  # 14
    Part.LineSegment(Vector(47.8, -64.8, 0), Vector(47.8, -67.3, 0)),  # 15
    Part.LineSegment(Vector(47.8, -67.3, 0), Vector(3.8, -67.3, 0)),  # 16
    Part.LineSegment(Vector(0, -62.2, 0), Vector(0, -59.7, 0)),  # 17
    Part.LineSegment(Vector(0, -59.7, 0), Vector(43.9, -59.7, 0)),  # 18
    Part.LineSegment(Vector(43.9, -59.7, 0), Vector(43.9, -62.2, 0)),  # 19
    Part.LineSegment(Vector(43.9, -62.2, 0), Vector(0, -62.2, 0)),  # 20
    Part.LineSegment(Vector(3.8, -57.1, 0), Vector(3.8, -54.6, 0)),  # 21
    Part.LineSegment(Vector(3.8, -54.6, 0), Vector(47.8, -54.6, 0)),  # 22
    Part.LineSegment(Vector(47.8, -54.6, 0), Vector(47.8, -57.1, 0)),  # 23
    Part.LineSegment(Vector(47.8, -57.1, 0), Vector(3.8, -57.1, 0)),  # 24
    Part.LineSegment(Vector(0, -52.1, 0), Vector(0, -49.5, 0)),  # 25
    Part.LineSegment(Vector(0, -49.5, 0), Vector(43.9, -49.5, 0)),  # 26
    Part.LineSegment(Vector(43.9, -49.5, 0), Vector(43.9, -52.1, 0)),  # 27
    Part.LineSegment(Vector(43.9, -52.1, 0), Vector(0, -52.1, 0)),  # 28
    Part.LineSegment(Vector(3.8, -47, 0), Vector(3.8, -44.5, 0)),  # 29
    Part.LineSegment(Vector(3.8, -44.5, 0), Vector(47.8, -44.5, 0)),  # 30
    Part.LineSegment(Vector(47.8, -44.5, 0), Vector(47.8, -47, 0)),  # 31
    Part.LineSegment(Vector(47.8, -47, 0), Vector(3.8, -47, 0)),  # 32
    Part.LineSegment(Vector(0, -41.9, 0), Vector(0, -39.4, 0)),  # 33
    Part.LineSegment(Vector(0, -39.4, 0), Vector(43.9, -39.4, 0)),  # 34
    Part.LineSegment(Vector(43.9, -39.4, 0), Vector(43.9, -41.9, 0)),  # 35
    Part.LineSegment(Vector(43.9, -41.9, 0), Vector(0, -41.9, 0)),  # 36
    Part.LineSegment(Vector(3.8, -36.8, 0), Vector(3.8, -34.3, 0)),  # 37
    Part.LineSegment(Vector(3.8, -34.3, 0), Vector(47.8, -34.3, 0)),  # 38
    Part.LineSegment(Vector(47.8, -34.3, 0), Vector(47.8, -36.8, 0)),  # 39
    Part.LineSegment(Vector(47.8, -36.8, 0), Vector(3.8, -36.8, 0)),  # 40
], False)
sketch5.addConstraint([
    Sketcher.Constraint("Coincident", 1, 2, 2, 1),
    Sketcher.Constraint("Coincident", 2, 2, 3, 1),
    Sketcher.Constraint("Coincident", 3, 2, 4, 1),
    Sketcher.Constraint("Coincident", 4, 2, 5, 1),
    Sketcher.Constraint("Coincident", 5, 2, 6, 1),
    Sketcher.Constraint("Coincident", 6, 2, 7, 1),
    Sketcher.Constraint("Coincident", 7, 2, 8, 1),
    Sketcher.Constraint("Coincident", 8, 2, 9, 1),
    Sketcher.Constraint("Coincident", 9, 2, 10, 1),
    Sketcher.Constraint("Coincident", 10, 2, 11, 1),
    Sketcher.Constraint("Coincident", 11, 2, 12, 1),
    Sketcher.Constraint("Coincident", 12, 2, 1, 1),
    Sketcher.Constraint("Coincident", 13, 2, 14, 1),
    Sketcher.Constraint("Coincident", 14, 2, 15, 1),
    Sketcher.Constraint("Coincident", 15, 2, 16, 1),
    Sketcher.Constraint("Coincident", 16, 2, 13, 1),
    Sketcher.Constraint("Coincident", 17, 2, 18, 1),
    Sketcher.Constraint("Coincident", 18, 2, 19, 1),
    Sketcher.Constraint("Coincident", 19, 2, 20, 1),
    Sketcher.Constraint("Coincident", 20, 2, 17, 1),
    Sketcher.Constraint("Coincident", 21, 2, 22, 1),
    Sketcher.Constraint("Coincident", 22, 2, 23, 1),
    Sketcher.Constraint("Coincident", 23, 2, 24, 1),
    Sketcher.Constraint("Coincident", 24, 2, 21, 1),
    Sketcher.Constraint("Coincident", 25, 2, 26, 1),
    Sketcher.Constraint("Coincident", 26, 2, 27, 1),
    Sketcher.Constraint("Coincident", 27, 2, 28, 1),
    Sketcher.Constraint("Coincident", 28, 2, 25, 1),
    Sketcher.Constraint("Coincident", 29, 2, 30, 1),
    Sketcher.Constraint("Coincident", 30, 2, 31, 1),
    Sketcher.Constraint("Coincident", 31, 2, 32, 1),
    Sketcher.Constraint("Coincident", 32, 2, 29, 1),
    Sketcher.Constraint("Coincident", 33, 2, 34, 1),
    Sketcher.Constraint("Coincident", 34, 2, 35, 1),
    Sketcher.Constraint("Coincident", 35, 2, 36, 1),
    Sketcher.Constraint("Coincident", 36, 2, 33, 1),
    Sketcher.Constraint("Coincident", 37, 2, 38, 1),
    Sketcher.Constraint("Coincident", 38, 2, 39, 1),
    Sketcher.Constraint("Coincident", 39, 2, 40, 1),
    Sketcher.Constraint("Coincident", 40, 2, 37, 1),
    Sketcher.Constraint("Vertical", 1),
    Sketcher.Constraint("Horizontal", 2),
    Sketcher.Constraint("Vertical", 3),
    Sketcher.Constraint("Horizontal", 4),
    Sketcher.Constraint("Vertical", 5),
    Sketcher.Constraint("Horizontal", 6),
    Sketcher.Constraint("Vertical", 7),
    Sketcher.Constraint("Horizontal", 8),
    Sketcher.Constraint("Vertical", 9),
    Sketcher.Constraint("Horizontal", 10),
    Sketcher.Constraint("Vertical", 11),
    Sketcher.Constraint("Horizontal", 12),
    Sketcher.Constraint("Vertical", 13),
    Sketcher.Constraint("Horizontal", 14),
    Sketcher.Constraint("Vertical", 15),
    Sketcher.Constraint("Horizontal", 16),
    Sketcher.Constraint("Vertical", 17),
    Sketcher.Constraint("Horizontal", 18),
    Sketcher.Constraint("Vertical", 19),
    Sketcher.Constraint("Horizontal", 20),
    Sketcher.Constraint("Vertical", 21),
    Sketcher.Constraint("Horizontal", 22),
    Sketcher.Constraint("Vertical", 23),
    Sketcher.Constraint("Horizontal", 24),
    Sketcher.Constraint("Vertical", 25),
    Sketcher.Constraint("Horizontal", 26),
    Sketcher.Constraint("Vertical", 27),
    Sketcher.Constraint("Horizontal", 28),
    Sketcher.Constraint("Vertical", 29),
    Sketcher.Constraint("Horizontal", 30),
    Sketcher.Constraint("Vertical", 31),
    Sketcher.Constraint("Horizontal", 32),
    Sketcher.Constraint("Vertical", 33),
    Sketcher.Constraint("Horizontal", 34),
    Sketcher.Constraint("Vertical", 35),
    Sketcher.Constraint("Horizontal", 36),
    Sketcher.Constraint("Vertical", 37),
    Sketcher.Constraint("Horizontal", 38),
    Sketcher.Constraint("Vertical", 39),
    Sketcher.Constraint("Horizontal", 40),
    Sketcher.Constraint("PointOnObject", 17, 2, -2),
    Sketcher.Constraint("PointOnObject", 25, 2, -2),
    Sketcher.Constraint("PointOnObject", 33, 2, -2),
    Sketcher.Constraint("Horizontal", 4, 2, 7, 2),
    Sketcher.Constraint("Horizontal", 2, 2, 9, 2),
    Sketcher.Constraint("Vertical", 1, 2, 4, 2),
    Sketcher.Constraint("Vertical", 7, 2, 10, 2),
    Sketcher.Constraint("Vertical", 16, 2, 21, 2),
    Sketcher.Constraint("Vertical", 15, 2, 22, 2),
    Sketcher.Constraint("Vertical", 19, 2, 26, 2),
    Sketcher.Constraint("Vertical", 24, 2, 29, 2),
    Sketcher.Constraint("Vertical", 23, 2, 30, 2),
    Sketcher.Constraint("Vertical", 27, 2, 34, 2),
    Sketcher.Constraint("Vertical", 32, 2, 37, 2),
    Sketcher.Constraint("Vertical", 31, 2, 38, 2),
    Sketcher.Constraint("Equal", 16, 18),
    Sketcher.Constraint("Equal", 10, 1),
    Sketcher.Constraint("Equal", 12, 3),
    Sketcher.Constraint("Equal", 1, 5),
    Sketcher.Constraint("Equal", 11, 13),
    Sketcher.Constraint("Equal", 15, 17),
    Sketcher.Constraint("Equal", 19, 21),
    Sketcher.Constraint("Equal", 23, 25),
    Sketcher.Constraint("Equal", 27, 29),
    Sketcher.Constraint("Equal", 31, 33),
    Sketcher.Constraint("Equal", 35, 37),
    Sketcher.Constraint("Diameter", 0, Q("0.2 in")),
    Sketcher.Constraint("DistanceX", 6, 1, 6, 2, Q("0.2 in")),
    Sketcher.Constraint("DistanceX", 8, 1, 8, 2, Q("0.1 in")),
    Sketcher.Constraint("DistanceX", -1, 1, 0, 3, Q("1 in")),
    Sketcher.Constraint("DistanceX", 2, 2, 2, 1, Q("0.18 in")),
    Sketcher.Constraint("DistanceX", 14, 1, 14, 2, Q("1.73 in")),
    Sketcher.Constraint("DistanceX", -1, 1, 1, 2, Q("0.3 in")),
    Sketcher.Constraint("DistanceY", 1, 2, -1, 1, Q("3.1 in")),
    Sketcher.Constraint("DistanceY", 13, 2, 17, 2, Q("0.2 in")),
    Sketcher.Constraint("DistanceY", 17, 2, 21, 2, Q("0.2 in")),
    Sketcher.Constraint("DistanceY", 21, 2, 25, 2, Q("0.2 in")),
    Sketcher.Constraint("DistanceY", 25, 2, 29, 2, Q("0.2 in")),
    Sketcher.Constraint("DistanceY", 29, 2, 33, 2, Q("0.2 in")),
    Sketcher.Constraint("DistanceY", 33, 2, 37, 2, Q("0.2 in")),
    Sketcher.Constraint("DistanceY", 0, 3, -1, 1, Q("3.85 in")),
    Sketcher.Constraint("DistanceX", -1, 1, 13, 2, Q("0.15 in")),
    Sketcher.Constraint("DistanceY", 13, 2, -1, 1, Q("2.55 in")),
])
pocket2 = body.newObject("PartDesign::Pocket", "Pocket001")
pocket2.Profile = sketch5
pocket2.Type = "ThroughAll"
pocket2.Reversed = True

doc.recompute()
